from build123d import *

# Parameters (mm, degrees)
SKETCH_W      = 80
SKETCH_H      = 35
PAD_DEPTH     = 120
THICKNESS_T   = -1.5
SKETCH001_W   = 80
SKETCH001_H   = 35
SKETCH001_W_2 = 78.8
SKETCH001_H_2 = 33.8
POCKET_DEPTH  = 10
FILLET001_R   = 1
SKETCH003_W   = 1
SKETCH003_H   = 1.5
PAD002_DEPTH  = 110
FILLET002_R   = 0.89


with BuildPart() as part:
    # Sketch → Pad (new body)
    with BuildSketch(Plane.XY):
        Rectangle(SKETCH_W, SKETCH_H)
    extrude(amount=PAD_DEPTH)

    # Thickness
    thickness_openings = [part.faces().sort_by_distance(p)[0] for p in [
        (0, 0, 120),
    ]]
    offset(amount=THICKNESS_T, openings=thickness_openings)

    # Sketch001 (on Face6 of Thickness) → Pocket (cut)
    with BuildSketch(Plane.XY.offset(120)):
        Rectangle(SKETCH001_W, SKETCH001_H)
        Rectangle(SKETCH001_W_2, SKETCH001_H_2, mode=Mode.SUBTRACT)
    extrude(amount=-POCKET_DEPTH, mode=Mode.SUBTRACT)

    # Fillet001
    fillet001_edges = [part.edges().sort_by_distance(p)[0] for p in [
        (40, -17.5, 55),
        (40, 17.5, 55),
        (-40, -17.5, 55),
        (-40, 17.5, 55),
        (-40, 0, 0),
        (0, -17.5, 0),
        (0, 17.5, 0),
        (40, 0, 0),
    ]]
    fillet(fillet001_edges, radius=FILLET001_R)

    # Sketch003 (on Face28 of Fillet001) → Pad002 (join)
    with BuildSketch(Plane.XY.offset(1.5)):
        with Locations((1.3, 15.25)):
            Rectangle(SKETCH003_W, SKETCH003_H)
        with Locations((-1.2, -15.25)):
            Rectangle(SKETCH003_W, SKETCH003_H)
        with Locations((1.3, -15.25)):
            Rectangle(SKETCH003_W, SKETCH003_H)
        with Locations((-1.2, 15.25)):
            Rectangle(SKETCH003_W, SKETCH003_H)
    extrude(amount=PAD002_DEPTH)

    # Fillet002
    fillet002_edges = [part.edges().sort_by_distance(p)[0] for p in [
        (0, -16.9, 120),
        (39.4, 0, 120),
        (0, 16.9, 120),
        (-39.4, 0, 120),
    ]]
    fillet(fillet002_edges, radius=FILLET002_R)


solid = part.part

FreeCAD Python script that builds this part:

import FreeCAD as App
import Part
import Sketcher

V = App.Vector
Q = App.Units.Quantity


def edges_at(feature, points):
    """Names of the edges that pass closest to the given points."""
    edges = feature.Shape.Edges
    near = lambda p: min(range(len(edges)), key=lambda i: edges[i].distToShape(Part.Vertex(*p))[0])
    return sorted({f"Edge{near(p) + 1}" for p in points})


def faces_at(feature, points):
    """Names of the faces that lie closest to the given points."""
    faces = feature.Shape.Faces
    near = lambda p: min(range(len(faces)), key=lambda i: faces[i].distToShape(Part.Vertex(*p))[0])
    return sorted({f"Face{near(p) + 1}" for p in points})


def add_polygon(sketch, points):
    """Adds a closed chain of lines whose ends are joined by coincident constraints."""
    first, n = sketch.GeometryCount, len(points)
    for a, b in zip(points, points[1:] + points[:1]):
        sketch.addGeometry(Part.LineSegment(App.Vector(*a, 0), App.Vector(*b, 0)), False)
    for i in range(n):
        sketch.addConstraint(Sketcher.Constraint("Coincident", first + i, 2, first + (i + 1) % n, 1))

doc = App.newDocument("Part")
body = doc.addObject("PartDesign::Body", "Body")

sketch1 = body.newObject("Sketcher::SketchObject", "Sketch")
sketch1.AttachmentSupport = (doc.getObject("XY_Plane"), [""])
sketch1.MapMode = "FlatFace"
add_polygon(sketch1, [(-40, 18), (-40, -18), (40, -18), (40, 18)])
sketch1.addConstraint([
    Sketcher.Constraint("Vertical", 0),
    Sketcher.Constraint("Horizontal", 1),
    Sketcher.Constraint("Vertical", 2),
    Sketcher.Constraint("Horizontal", 3),
    Sketcher.Constraint("Symmetric", 0, 2, 2, 2, -1, 1),
    Sketcher.Constraint("DistanceX", 1, 1, 1, 2, Q("80 mm")),
    Sketcher.Constraint("DistanceY", 0, 2, 0, 1, Q("35 mm")),
])
pad1 = body.newObject("PartDesign::Pad", "Pad")
pad1.Profile = sketch1
pad1.Length = 120
doc.recompute()

thickness = body.newObject("PartDesign::Thickness", "Thickness")
thickness.Base = (pad1, faces_at(pad1, [(0, 0, 120)]))
thickness.Value = 1.5
thickness.Reversed = True
thickness.Join = "Arc"

sketch2 = body.newObject("Sketcher::SketchObject", "Sketch001")
sketch2.AttachmentSupport = (doc.getObject("XY_Plane"), [""])
sketch2.MapMode = "FlatFace"
sketch2.AttachmentOffset = App.Placement(V(0, 0, 120), App.Rotation())
add_polygon(sketch2, [(-40, 18), (-40, -18), (40, -18), (40, 18)])
add_polygon(sketch2, [(39, -17), (-39, -17), (-39, 17), (39, 17)])
sketch2.addConstraint([
    Sketcher.Constraint("Vertical", 0),
    Sketcher.Constraint("Horizontal", 1),
    Sketcher.Constraint("Vertical", 2),
    Sketcher.Constraint("Horizontal", 3),
    Sketcher.Constraint("Horizontal", 4),
    Sketcher.Constraint("Vertical", 5),
    Sketcher.Constraint("Horizontal", 6),
    Sketcher.Constraint("Vertical", 7),
    Sketcher.Constraint("Symmetric", 0, 2, 2, 2, -1, 1),
    Sketcher.Constraint("Symmetric", 4, 2, 6, 2, -1, 1),
    Sketcher.Constraint("DistanceX", 1, 1, 1, 2, Q("80 mm")),
    Sketcher.Constraint("DistanceY", 0, 2, 0, 1, Q("35 mm")),
    Sketcher.Constraint("DistanceX", 4, 2, 4, 1, Q("78.8 mm")),
    Sketcher.Constraint("DistanceY", 5, 1, 5, 2, Q("33.8 mm")),
])
pocket1 = body.newObject("PartDesign::Pocket", "Pocket")
pocket1.Profile = sketch2
pocket1.Length = 10
doc.recompute()

fillet = body.newObject("PartDesign::Fillet", "Fillet")
fillet.Base = (pocket1, edges_at(pocket1, [
    (40, -17.5, 55),
    (40, 17.5, 55),
    (-40, -17.5, 55),
    (-40, 17.5, 55),
    (-40, 0, 0),
    (0, -17.5, 0),
    (0, 17.5, 0),
    (40, 0, 0),
]))
fillet.Radius = 1

sketch3 = body.newObject("Sketcher::SketchObject", "Sketch002")
sketch3.AttachmentSupport = (doc.getObject("XY_Plane"), [""])
sketch3.MapMode = "FlatFace"
sketch3.AttachmentOffset = App.Placement(V(0, 0, 1.5), App.Rotation())
add_polygon(sketch3, [(0.8, 16), (0.8, 14.5), (1.8, 14.5), (1.8, 16)])
add_polygon(sketch3, [(-1.7, -14.5), (-1.7, -16), (-0.7, -16), (-0.7, -14.5)])
add_polygon(sketch3, [(0.8, -14.5), (0.8, -16), (1.8, -16), (1.8, -14.5)])
add_polygon(sketch3, [(-1.7, 16), (-1.7, 14.5), (-0.7, 14.5), (-0.7, 16)])
sketch3.addConstraint([
    Sketcher.Constraint("Vertical", 0),
    Sketcher.Constraint("Horizontal", 1),
    Sketcher.Constraint("Vertical", 2),
    Sketcher.Constraint("Horizontal", 3),
    Sketcher.Constraint("Vertical", 4),
    Sketcher.Constraint("Horizontal", 5),
    Sketcher.Constraint("Vertical", 6),
    Sketcher.Constraint("Horizontal", 7),
    Sketcher.Constraint("Vertical", 8),
    Sketcher.Constraint("Horizontal", 9),
    Sketcher.Constraint("Vertical", 10),
    Sketcher.Constraint("Horizontal", 11),
    Sketcher.Constraint("Vertical", 12),
    Sketcher.Constraint("Horizontal", 13),
    Sketcher.Constraint("Vertical", 14),
    Sketcher.Constraint("Horizontal", 15),
    Sketcher.Constraint("Symmetric", 3, 2, 8, 2, -1),
    Sketcher.Constraint("Symmetric", 1, 2, 10, 2, -1),
    Sketcher.Constraint("Symmetric", 7, 2, 12, 2, -1),
    Sketcher.Constraint("Symmetric", 5, 2, 14, 2, -1),
    Sketcher.Constraint("Horizontal", 5, 2, 8, 2),
    Sketcher.Constraint("Horizontal", 7, 2, 10, 2),
    Sketcher.Constraint("Equal", 3, 5),
    Sketcher.Constraint("DistanceX", 1, 1, 1, 2, Q("1 mm")),
    Sketcher.Constraint("DistanceY", 0, 2, 0, 1, Q("1.5 mm")),
    Sketcher.Constraint("DistanceY", -1, 1, 2, 2, Q("16 mm")),
    Sketcher.Constraint("DistanceX", -1, 1, 0, 2, Q("0.8 mm")),
    Sketcher.Constraint("DistanceX", 4, 2, -1, 1, Q("1.7 mm")),
])
pad2 = body.newObject("PartDesign::Pad", "Pad001")
pad2.Profile = sketch3
pad2.Length = 110
doc.recompute()

fillet2 = body.newObject("PartDesign::Fillet", "Fillet001")
fillet2.Base = (pad2, edges_at(pad2, [
    (0, -16.9, 120),
    (39.4, 0, 120),
    (0, 16.9, 120),
    (-39.4, 0, 120),
]))
fillet2.Radius = 0.89

doc.recompute()
